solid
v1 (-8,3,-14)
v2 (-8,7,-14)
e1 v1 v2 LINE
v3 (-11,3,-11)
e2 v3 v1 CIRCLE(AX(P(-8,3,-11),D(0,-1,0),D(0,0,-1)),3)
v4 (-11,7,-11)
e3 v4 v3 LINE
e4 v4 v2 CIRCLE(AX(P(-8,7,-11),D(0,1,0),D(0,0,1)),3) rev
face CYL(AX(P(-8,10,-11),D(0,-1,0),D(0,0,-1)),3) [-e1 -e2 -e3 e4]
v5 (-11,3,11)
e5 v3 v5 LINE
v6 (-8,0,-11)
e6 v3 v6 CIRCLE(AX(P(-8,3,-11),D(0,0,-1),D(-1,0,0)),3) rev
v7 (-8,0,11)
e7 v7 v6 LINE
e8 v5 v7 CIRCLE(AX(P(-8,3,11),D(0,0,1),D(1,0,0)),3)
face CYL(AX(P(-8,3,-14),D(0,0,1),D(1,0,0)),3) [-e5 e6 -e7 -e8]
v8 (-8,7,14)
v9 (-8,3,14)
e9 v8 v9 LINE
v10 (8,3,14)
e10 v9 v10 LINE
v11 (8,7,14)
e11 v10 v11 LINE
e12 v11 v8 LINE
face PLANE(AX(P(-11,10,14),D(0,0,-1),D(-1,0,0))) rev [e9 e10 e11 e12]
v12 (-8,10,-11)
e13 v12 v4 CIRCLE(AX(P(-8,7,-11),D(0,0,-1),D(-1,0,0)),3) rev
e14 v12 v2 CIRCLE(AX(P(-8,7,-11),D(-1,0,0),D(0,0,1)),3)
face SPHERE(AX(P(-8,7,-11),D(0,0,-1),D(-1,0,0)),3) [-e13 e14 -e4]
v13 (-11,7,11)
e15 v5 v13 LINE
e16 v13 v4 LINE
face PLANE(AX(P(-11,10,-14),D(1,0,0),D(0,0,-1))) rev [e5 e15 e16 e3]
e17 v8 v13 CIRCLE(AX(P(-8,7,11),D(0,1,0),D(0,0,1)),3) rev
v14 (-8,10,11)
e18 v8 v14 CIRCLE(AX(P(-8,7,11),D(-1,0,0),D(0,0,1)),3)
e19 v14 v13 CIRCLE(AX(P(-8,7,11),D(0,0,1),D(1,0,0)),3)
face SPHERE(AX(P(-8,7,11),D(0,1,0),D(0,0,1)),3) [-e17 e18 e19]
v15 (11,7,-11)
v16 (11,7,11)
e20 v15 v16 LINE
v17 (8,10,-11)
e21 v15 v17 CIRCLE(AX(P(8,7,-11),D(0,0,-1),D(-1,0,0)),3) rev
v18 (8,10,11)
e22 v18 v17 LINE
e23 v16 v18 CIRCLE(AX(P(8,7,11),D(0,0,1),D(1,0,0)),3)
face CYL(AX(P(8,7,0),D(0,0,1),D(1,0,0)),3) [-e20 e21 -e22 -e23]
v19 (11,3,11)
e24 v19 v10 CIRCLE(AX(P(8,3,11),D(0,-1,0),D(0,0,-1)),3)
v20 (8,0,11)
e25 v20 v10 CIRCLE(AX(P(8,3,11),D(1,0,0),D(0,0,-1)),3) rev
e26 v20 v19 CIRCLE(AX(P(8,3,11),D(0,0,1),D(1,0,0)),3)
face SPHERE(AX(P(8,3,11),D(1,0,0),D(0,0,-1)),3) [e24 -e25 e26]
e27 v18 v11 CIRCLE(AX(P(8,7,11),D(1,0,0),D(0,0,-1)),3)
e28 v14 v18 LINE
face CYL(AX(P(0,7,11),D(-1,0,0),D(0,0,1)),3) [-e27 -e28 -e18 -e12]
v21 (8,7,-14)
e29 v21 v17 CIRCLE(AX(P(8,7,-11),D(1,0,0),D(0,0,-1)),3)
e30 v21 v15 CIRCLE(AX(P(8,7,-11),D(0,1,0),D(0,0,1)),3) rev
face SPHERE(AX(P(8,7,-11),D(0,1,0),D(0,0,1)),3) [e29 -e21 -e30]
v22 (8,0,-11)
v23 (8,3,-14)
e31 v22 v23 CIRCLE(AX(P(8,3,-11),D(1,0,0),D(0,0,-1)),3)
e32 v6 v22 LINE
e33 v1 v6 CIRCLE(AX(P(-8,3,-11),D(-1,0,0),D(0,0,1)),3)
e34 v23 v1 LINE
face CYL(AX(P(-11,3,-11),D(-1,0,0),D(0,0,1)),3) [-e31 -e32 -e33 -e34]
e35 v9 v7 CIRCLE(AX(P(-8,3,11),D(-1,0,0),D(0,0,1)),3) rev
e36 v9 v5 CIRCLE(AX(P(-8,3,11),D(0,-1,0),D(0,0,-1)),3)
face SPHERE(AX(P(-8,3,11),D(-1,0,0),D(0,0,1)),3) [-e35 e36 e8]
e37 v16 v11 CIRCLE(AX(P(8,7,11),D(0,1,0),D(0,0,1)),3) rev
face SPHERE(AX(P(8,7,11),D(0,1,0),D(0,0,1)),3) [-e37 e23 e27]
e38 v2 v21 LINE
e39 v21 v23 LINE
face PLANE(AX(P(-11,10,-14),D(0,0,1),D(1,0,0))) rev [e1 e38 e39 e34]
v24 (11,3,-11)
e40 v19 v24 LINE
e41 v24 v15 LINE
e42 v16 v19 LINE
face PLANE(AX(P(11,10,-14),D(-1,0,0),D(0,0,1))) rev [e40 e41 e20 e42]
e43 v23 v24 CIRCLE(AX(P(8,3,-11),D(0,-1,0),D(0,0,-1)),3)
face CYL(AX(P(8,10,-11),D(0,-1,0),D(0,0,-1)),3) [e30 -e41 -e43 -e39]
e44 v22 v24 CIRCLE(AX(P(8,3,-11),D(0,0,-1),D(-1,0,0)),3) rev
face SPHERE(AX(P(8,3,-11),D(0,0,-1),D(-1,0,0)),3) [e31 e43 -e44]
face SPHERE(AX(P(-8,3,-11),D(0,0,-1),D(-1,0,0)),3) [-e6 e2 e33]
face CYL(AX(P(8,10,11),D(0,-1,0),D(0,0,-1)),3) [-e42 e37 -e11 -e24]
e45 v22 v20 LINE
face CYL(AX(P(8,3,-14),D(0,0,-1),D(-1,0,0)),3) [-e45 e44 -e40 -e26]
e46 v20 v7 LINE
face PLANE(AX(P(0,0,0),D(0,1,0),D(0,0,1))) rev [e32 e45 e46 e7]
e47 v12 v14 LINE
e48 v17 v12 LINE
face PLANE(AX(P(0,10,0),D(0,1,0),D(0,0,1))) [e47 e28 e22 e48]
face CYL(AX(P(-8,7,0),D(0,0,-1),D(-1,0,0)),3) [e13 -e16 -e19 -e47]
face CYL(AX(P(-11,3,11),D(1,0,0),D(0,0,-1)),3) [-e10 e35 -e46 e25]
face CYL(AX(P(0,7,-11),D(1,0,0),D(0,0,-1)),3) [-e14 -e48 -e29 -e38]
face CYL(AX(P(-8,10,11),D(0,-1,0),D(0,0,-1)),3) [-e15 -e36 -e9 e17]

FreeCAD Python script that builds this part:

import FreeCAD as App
import Part
import Sketcher
from FreeCAD import Vector


def add_polygon(sketch, points):
    """Adds a closed chain of lines whose ends are joined by coincident constraints."""
    first, n = sketch.GeometryCount, len(points)
    for a, b in zip(points, points[1:] + points[:1]):
        sketch.addGeometry(Part.LineSegment(App.Vector(*a, 0), App.Vector(*b, 0)), False)
    for i in range(n):
        sketch.addConstraint(Sketcher.Constraint("Coincident", first + i, 2, first + (i + 1) % n, 1))

doc = App.newDocument("Part")
params = doc.addObject("Spreadsheet::Sheet", "Params")
for row, (alias, value) in enumerate([
    ("sketch1_width", "22 mm"),
    ("sketch1_height", "28 mm"),
    ("pad1_length", "10 mm"),
    ("fillet_radius", "3 mm"),
], start=1):
    params.set(f"A{row}", alias)
    params.set(f"B{row}", "=" + value)
    params.setAlias(f"B{row}", alias)

body = doc.addObject("PartDesign::Body", "Body")

# Sketch on XZ plane
sketch1 = body.newObject("Sketcher::SketchObject", "Sketch")
sketch1.AttachmentSupport = (doc.getObject("XZ_Plane"), [""])
sketch1.MapMode = "FlatFace"
add_polygon(sketch1, [(-11, -14), (-11, 14), (11, 14), (11, -14)])  # lines 0-3
sketch1.addConstraint(Sketcher.Constraint("Vertical", 0))
sketch1.addConstraint(Sketcher.Constraint("Horizontal", 1))
sketch1.addConstraint(Sketcher.Constraint("Vertical", 2))
sketch1.addConstraint(Sketcher.Constraint("Horizontal", 3))
sketch1.addConstraint(Sketcher.Constraint("Symmetric", 0, 2, 2, 2, -1, 1))
sketch1.addConstraint(Sketcher.Constraint("DistanceX", 1, 1, 1, 2, 22.0))
sketch1.addConstraint(Sketcher.Constraint("DistanceY", 0, 1, 0, 2, 28.0))
sketch1.setExpression("Constraints[9]", "Params.sketch1_width")
sketch1.setExpression("Constraints[10]", "Params.sketch1_height")
pad1 = body.newObject("PartDesign::Pad", "Pad")
pad1.Profile = sketch1
pad1.setExpression("Length", "Params.pad1_length")
pad1.Reversed = True
doc.recompute()

fillet = body.newObject("PartDesign::Fillet", "Fillet")
fillet.Base = (pad1, ["Edge1"])
fillet.UseAllEdges = True
fillet.setExpression("Radius", "Params.fillet_radius")

doc.recompute()
